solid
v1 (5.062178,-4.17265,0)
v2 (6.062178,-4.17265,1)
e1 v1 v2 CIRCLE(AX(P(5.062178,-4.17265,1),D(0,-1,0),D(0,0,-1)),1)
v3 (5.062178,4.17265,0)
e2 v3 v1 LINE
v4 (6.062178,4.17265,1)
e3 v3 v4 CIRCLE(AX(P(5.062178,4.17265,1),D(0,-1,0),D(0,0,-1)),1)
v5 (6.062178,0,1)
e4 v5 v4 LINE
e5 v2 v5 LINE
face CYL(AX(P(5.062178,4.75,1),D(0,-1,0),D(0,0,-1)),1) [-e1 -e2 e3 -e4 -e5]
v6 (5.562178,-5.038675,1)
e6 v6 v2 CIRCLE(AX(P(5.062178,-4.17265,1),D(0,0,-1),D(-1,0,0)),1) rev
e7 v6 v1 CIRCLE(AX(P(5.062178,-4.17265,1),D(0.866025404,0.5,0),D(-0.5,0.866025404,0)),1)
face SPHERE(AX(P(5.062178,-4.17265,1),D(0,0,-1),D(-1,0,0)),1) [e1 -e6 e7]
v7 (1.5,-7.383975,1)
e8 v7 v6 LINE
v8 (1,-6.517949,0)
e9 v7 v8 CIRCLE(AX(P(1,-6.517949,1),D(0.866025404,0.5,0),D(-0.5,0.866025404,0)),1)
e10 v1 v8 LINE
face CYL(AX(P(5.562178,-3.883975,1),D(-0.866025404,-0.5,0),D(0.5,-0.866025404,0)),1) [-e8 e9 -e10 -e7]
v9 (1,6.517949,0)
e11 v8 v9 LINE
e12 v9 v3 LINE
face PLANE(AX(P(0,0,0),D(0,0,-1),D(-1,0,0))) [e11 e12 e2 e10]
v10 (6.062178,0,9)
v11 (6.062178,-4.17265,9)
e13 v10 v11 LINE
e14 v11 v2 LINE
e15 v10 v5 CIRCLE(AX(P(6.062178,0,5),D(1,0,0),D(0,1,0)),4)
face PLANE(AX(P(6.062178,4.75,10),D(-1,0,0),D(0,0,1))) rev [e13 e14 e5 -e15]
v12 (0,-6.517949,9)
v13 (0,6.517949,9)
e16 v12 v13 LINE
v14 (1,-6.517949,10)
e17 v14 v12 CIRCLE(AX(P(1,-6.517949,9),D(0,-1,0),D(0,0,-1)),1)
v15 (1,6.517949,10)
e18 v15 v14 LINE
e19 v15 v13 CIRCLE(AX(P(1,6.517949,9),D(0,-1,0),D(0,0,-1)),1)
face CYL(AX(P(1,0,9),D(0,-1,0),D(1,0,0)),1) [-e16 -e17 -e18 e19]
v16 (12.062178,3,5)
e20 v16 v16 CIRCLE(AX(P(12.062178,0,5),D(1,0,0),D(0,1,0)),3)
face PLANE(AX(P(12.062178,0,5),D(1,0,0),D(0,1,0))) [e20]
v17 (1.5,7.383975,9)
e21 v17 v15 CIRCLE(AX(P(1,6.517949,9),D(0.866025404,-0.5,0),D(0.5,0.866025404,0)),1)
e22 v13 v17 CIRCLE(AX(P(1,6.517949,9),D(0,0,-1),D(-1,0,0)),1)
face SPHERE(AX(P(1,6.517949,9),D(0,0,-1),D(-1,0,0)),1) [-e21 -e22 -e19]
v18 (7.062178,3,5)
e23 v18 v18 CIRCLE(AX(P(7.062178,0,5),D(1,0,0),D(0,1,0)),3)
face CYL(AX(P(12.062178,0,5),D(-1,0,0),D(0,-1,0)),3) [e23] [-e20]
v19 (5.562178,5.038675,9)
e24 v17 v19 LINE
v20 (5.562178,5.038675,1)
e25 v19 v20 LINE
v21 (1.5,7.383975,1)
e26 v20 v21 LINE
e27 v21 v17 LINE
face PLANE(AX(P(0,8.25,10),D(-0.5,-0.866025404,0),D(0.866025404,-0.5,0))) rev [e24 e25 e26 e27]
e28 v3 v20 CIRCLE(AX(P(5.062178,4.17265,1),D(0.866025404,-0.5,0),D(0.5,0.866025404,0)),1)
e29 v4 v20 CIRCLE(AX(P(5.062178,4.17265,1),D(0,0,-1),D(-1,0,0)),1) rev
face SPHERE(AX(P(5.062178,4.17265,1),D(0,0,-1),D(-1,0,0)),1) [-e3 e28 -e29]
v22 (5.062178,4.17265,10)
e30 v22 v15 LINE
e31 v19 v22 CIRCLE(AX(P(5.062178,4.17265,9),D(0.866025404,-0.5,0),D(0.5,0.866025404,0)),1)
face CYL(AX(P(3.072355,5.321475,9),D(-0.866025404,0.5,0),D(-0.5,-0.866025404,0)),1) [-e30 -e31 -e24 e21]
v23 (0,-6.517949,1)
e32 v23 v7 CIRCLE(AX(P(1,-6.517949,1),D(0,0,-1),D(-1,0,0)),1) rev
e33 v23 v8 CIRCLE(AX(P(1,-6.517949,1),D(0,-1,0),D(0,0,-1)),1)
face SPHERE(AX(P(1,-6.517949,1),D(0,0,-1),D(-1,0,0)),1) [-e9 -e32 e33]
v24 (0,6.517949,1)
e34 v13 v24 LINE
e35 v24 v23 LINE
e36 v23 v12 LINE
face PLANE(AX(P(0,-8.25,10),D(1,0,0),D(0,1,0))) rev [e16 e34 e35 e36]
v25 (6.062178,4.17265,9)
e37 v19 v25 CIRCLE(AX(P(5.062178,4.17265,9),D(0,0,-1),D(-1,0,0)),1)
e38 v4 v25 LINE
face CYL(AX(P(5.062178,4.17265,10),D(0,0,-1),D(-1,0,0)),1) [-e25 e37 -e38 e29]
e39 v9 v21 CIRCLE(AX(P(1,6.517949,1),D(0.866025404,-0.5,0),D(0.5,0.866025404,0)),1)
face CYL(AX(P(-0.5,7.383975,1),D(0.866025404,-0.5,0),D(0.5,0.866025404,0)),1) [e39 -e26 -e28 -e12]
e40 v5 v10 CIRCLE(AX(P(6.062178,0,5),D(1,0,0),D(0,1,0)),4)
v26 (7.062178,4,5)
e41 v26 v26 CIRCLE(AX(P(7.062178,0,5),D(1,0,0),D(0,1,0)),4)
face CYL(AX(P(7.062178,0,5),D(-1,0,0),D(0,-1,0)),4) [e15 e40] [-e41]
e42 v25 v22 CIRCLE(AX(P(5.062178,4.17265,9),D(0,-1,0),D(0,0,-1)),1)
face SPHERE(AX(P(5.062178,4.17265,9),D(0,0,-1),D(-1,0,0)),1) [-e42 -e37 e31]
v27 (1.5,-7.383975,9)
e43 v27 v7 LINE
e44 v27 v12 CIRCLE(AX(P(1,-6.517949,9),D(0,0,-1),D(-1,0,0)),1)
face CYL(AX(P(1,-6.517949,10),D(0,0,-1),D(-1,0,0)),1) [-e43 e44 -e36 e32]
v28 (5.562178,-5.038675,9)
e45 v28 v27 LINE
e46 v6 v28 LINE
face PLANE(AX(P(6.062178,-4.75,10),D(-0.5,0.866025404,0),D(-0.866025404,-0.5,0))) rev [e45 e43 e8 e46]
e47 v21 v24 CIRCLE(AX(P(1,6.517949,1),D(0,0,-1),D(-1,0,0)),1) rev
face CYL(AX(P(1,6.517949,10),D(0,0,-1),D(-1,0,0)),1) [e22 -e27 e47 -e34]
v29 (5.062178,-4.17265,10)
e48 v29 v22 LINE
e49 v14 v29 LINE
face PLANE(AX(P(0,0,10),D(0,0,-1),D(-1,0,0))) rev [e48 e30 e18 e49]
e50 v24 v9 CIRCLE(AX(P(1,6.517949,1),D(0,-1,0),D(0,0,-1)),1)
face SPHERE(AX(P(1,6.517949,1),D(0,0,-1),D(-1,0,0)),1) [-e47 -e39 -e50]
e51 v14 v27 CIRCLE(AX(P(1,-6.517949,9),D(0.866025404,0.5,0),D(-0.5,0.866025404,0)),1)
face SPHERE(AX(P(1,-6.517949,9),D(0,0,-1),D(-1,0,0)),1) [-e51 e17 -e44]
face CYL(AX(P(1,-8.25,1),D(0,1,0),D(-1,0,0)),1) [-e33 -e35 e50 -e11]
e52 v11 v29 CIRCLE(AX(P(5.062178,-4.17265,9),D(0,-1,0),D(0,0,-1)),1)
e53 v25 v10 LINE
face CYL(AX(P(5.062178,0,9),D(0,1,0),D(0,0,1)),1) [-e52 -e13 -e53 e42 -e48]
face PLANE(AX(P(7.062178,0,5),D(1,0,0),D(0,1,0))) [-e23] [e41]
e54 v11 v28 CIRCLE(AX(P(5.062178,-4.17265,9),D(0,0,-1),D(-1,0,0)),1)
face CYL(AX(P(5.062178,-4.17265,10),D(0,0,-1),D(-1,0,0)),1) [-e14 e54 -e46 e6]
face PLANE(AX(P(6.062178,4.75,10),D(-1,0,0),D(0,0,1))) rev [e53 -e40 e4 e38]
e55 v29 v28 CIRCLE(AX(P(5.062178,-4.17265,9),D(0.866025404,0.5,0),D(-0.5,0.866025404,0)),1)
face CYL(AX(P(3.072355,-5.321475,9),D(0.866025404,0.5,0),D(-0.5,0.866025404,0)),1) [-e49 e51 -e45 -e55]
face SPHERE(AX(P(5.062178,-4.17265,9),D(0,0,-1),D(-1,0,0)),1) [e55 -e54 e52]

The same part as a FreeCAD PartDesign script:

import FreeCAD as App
import Part
import Sketcher
Q = App.Units.Quantity


def edges_at(feature, points):
    """Names of the edges that pass closest to the given points."""
    edges = feature.Shape.Edges
    near = lambda p: min(range(len(edges)), key=lambda i: edges[i].distToShape(Part.Vertex(*p))[0])
    return sorted({f"Edge{near(p) + 1}" for p in points})


def add_polygon(sketch, points):
    """Adds a closed chain of lines whose ends are joined by coincident constraints."""
    first, n = sketch.GeometryCount, len(points)
    for a, b in zip(points, points[1:] + points[:1]):
        sketch.addGeometry(Part.LineSegment(App.Vector(*a, 0), App.Vector(*b, 0)), False)
    for i in range(n):
        sketch.addConstraint(Sketcher.Constraint("Coincident", first + i, 2, first + (i + 1) % n, 1))

doc = App.newDocument("Part")
body = doc.addObject("PartDesign::Body", "Body")

# Sketch on XY plane
sketch1 = body.newObject("Sketcher::SketchObject", "Sketch")
sketch1.AttachmentSupport = (doc.getObject("XY_Plane"), [""])
sketch1.MapMode = "FlatFace"
add_polygon(sketch1, [(0, 8), (0, -8), (6, -5), (6, 5)])  # lines 0-3
sketch1.addConstraint([
    Sketcher.Constraint("Vertical", 0),
    Sketcher.Constraint("Vertical", 2),
    Sketcher.Constraint("Symmetric", 0, 2, 3, 2, -1, 1),
    Sketcher.Constraint("Equal", 1, 3),
    Sketcher.Constraint("Angle", 1, Q("30 deg")),
    Sketcher.Constraint("Distance", 1, Q("7 mm")),
    Sketcher.Constraint("DistanceY", 0, 2, 0, 1, Q("16.5 mm")),
])
pad1 = body.newObject("PartDesign::Pad", "Pad")
pad1.Profile = sketch1
pad1.Length = 10
doc.recompute()

fillet = body.newObject("PartDesign::Fillet", "Fillet")
fillet.Base = (pad1, edges_at(pad1, [
    (0, -8.25, 5),
    (0, 8.25, 5),
    (6.062, 4.75, 5),
    (6.062, -4.75, 5),
]))
fillet.Radius = 1
doc.recompute()

fillet2 = body.newObject("PartDesign::Fillet", "Fillet001")
fillet2.Base = (fillet, edges_at(fillet, [
    (3.531, -6.211, 0),
    (3.531, -6.211, 10),
    (0, 0, 0),
    (3.531, 6.211, 0),
    (6.062, 0, 0),
    (0.5, 7.384, 0),
    (5.928, 4.673, 0),
    (5.928, -4.673, 0),
    (0.5, -7.384, 0),
    (0, 0, 10),
    (6.062, 0, 10),
    (3.531, 6.211, 10),
    (0.5, 7.384, 10),
    (5.928, 4.673, 10),
    (5.928, -4.673, 10),
    (0.5, -7.384, 10),
]))
fillet2.Radius = 1

# Sketch on YZ plane
sketch2 = body.newObject("Sketcher::SketchObject", "Sketch001")
sketch2.AttachmentSupport = (doc.getObject("YZ_Plane"), [""])
sketch2.MapMode = "FlatFace"
sketch2.AttachmentOffset = App.Placement(App.Vector(0, 0, 6.062178), App.Rotation())
sketch2.addGeometry(Part.Circle(App.Vector(0, 5, 0), App.Vector(0, 0, 1), 4), False)
sketch2.addConstraint([
    Sketcher.Constraint("PointOnObject", 0, 3, -2),
    Sketcher.Constraint("Diameter", 0, Q("8 mm")),
    Sketcher.Constraint("DistanceY", -1, 1, 0, 3, Q("5 mm")),
])
pad2 = body.newObject("PartDesign::Pad", "Pad001")
pad2.Profile = sketch2
pad2.Length = 1

# Sketch on YZ plane
sketch3 = body.newObject("Sketcher::SketchObject", "Sketch002")
sketch3.AttachmentSupport = (doc.getObject("YZ_Plane"), [""])
sketch3.MapMode = "FlatFace"
sketch3.AttachmentOffset = App.Placement(App.Vector(0, 0, 7.062178), App.Rotation())
sketch3.addGeometry(Part.Circle(App.Vector(0, 5, 0), App.Vector(0, 0, 1), 3), False)
sketch3.addConstraint([
    Sketcher.Constraint("PointOnObject", 0, 3, -2),
    Sketcher.Constraint("Diameter", 0, Q("6 mm")),
    Sketcher.Constraint("DistanceY", -1, 1, 0, 3, Q("5 mm")),
])
pad3 = body.newObject("PartDesign::Pad", "Pad002")
pad3.Profile = sketch3
pad3.Length = 5

doc.recompute()
